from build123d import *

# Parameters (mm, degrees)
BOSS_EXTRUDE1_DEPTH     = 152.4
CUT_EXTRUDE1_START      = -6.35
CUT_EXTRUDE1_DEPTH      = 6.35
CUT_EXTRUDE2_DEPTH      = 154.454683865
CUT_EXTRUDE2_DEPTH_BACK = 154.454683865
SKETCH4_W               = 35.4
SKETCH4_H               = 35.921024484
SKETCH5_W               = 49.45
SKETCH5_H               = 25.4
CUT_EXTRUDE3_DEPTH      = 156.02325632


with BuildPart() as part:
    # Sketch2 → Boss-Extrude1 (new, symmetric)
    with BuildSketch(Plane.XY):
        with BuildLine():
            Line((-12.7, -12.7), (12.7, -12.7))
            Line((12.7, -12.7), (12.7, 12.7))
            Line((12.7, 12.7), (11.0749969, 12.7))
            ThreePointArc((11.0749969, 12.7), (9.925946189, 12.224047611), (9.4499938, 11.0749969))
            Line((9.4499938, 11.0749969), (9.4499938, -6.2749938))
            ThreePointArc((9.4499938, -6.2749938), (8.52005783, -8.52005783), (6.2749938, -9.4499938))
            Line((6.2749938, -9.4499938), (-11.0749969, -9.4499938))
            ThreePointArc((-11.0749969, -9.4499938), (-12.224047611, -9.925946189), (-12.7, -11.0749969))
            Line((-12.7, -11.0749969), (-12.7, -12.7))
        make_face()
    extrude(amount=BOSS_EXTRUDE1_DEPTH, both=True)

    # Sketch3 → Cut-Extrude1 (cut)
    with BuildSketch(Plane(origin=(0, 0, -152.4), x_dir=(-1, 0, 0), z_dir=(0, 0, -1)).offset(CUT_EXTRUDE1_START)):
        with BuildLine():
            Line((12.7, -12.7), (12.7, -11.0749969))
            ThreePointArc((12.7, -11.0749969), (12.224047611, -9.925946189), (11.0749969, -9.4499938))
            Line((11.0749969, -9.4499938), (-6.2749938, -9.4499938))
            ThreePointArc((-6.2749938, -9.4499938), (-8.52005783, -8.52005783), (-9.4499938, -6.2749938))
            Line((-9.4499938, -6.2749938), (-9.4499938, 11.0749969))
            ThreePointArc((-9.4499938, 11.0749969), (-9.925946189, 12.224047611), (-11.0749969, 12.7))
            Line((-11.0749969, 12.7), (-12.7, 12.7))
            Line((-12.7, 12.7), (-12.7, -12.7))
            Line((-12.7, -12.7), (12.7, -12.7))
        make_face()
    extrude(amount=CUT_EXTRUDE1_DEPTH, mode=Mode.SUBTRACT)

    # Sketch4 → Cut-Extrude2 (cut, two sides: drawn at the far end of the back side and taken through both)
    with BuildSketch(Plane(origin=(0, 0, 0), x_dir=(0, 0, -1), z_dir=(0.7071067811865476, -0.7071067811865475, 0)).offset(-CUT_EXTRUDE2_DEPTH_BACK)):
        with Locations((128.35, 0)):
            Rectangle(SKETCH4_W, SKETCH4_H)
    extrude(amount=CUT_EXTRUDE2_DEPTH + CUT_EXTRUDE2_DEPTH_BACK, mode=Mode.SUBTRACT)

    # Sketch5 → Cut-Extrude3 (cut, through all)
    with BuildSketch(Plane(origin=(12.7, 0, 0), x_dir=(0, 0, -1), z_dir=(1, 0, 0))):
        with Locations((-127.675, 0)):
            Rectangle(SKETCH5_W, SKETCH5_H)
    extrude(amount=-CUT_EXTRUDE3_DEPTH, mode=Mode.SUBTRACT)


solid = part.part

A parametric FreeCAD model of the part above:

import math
import FreeCAD as App
import Part
import Sketcher
from FreeCAD import Vector
Q = App.Units.Quantity

doc = App.newDocument("Part")
body = doc.addObject("PartDesign::Body", "Body")

# Sketch on XY plane
sketch1 = body.newObject("Sketcher::SketchObject", "Sketch")
sketch1.AttachmentSupport = (doc.getObject("XY_Plane"), [""])
sketch1.MapMode = "FlatFace"
sketch1.addGeometry([
    Part.LineSegment(Vector(-12.7, -12.7, 0), Vector(12.7, -12.7, 0)),  # 0
    Part.LineSegment(Vector(12.7, -12.7, 0), Vector(12.7, 12.7, 0)),  # 1
    Part.LineSegment(Vector(12.7, 12.7, 0), Vector(11.1, 12.7, 0)),  # 2
    Part.ArcOfCircle(Part.Circle(Vector(11.1, 11.1, 0), Vector(0, 0, 1), 1.6), math.radians(90), math.radians(180)),  # 3
    Part.LineSegment(Vector(9.4, 11.1, 0), Vector(9.4, -6.3, 0)),  # 4
    Part.ArcOfCircle(Part.Circle(Vector(6.3, -6.3, 0), Vector(0, 0, 1), 3.2), math.radians(-90), math.radians(0)),  # 5
    Part.LineSegment(Vector(6.3, -9.4, 0), Vector(-11.1, -9.4, 0)),  # 6
    Part.ArcOfCircle(Part.Circle(Vector(-11.1, -11.1, 0), Vector(0, 0, 1), 1.6), math.radians(90), math.radians(180)),  # 7
    Part.LineSegment(Vector(-12.7, -11.1, 0), Vector(-12.7, -12.7, 0)),  # 8
], False)
sketch1.addConstraint([
    Sketcher.Constraint("Coincident", 0, 2, 1, 1),
    Sketcher.Constraint("Coincident", 1, 2, 2, 1),
    Sketcher.Constraint("Tangent", 2, 2, 3, 1),
    Sketcher.Constraint("Tangent", 3, 2, 4, 1),
    Sketcher.Constraint("Tangent", 4, 2, 5, 2),
    Sketcher.Constraint("Tangent", 5, 1, 6, 1),
    Sketcher.Constraint("Tangent", 6, 2, 7, 1),
    Sketcher.Constraint("Tangent", 7, 2, 8, 1),
    Sketcher.Constraint("Coincident", 8, 2, 0, 1),
    Sketcher.Constraint("Horizontal", 0),
    Sketcher.Constraint("Vertical", 1),
    Sketcher.Constraint("Horizontal", 2),
    Sketcher.Constraint("Vertical", 4),
    Sketcher.Constraint("Horizontal", 6),
    Sketcher.Constraint("Vertical", 8),
    Sketcher.Constraint("Equal", 3, 7),
    Sketcher.Constraint("Symmetric", 3, 3, 7, 3, -1, 1),
    Sketcher.Constraint("Symmetric", 1, 2, 8, 2, -1, 1),
    Sketcher.Constraint("Equal", 0, 1),
    Sketcher.Constraint("DistanceX", 0, 1, 0, 2, Q("1 in")),
    Sketcher.Constraint("Radius", 5, Q("0.125 in")),
    Sketcher.Constraint("Radius", 3, 1.625003),
])
pad1 = body.newObject("PartDesign::Pad", "Pad")
pad1.Profile = sketch1
pad1.Length = Q("12 in")
pad1.Midplane = True

# Sketch on XY plane
sketch2 = body.newObject("Sketcher::SketchObject", "Sketch001")
sketch2.AttachmentSupport = (doc.getObject("XY_Plane"), [""])
sketch2.MapMode = "FlatFace"
sketch2.AttachmentOffset = App.Placement(Vector(0, 0, -5.75 * 25.4), App.Rotation())
sketch2.addGeometry([
    Part.LineSegment(Vector(-12.7, -12.7, 0), Vector(-12.7, -11.1, 0)),  # 0
    Part.ArcOfCircle(Part.Circle(Vector(-11.1, -11.1, 0), Vector(0, 0, 1), 1.6), math.radians(90), math.radians(180)),  # 1
    Part.LineSegment(Vector(-11.1, -9.4, 0), Vector(6.3, -9.4, 0)),  # 2
    Part.ArcOfCircle(Part.Circle(Vector(6.3, -6.3, 0), Vector(0, 0, 1), 3.2), math.radians(-90), math.radians(0)),  # 3
    Part.LineSegment(Vector(9.4, -6.3, 0), Vector(9.4, 11.1, 0)),  # 4
    Part.ArcOfCircle(Part.Circle(Vector(11.1, 11.1, 0), Vector(0, 0, 1), 1.6), math.radians(90), math.radians(180)),  # 5
    Part.LineSegment(Vector(11.1, 12.7, 0), Vector(12.7, 12.7, 0)),  # 6
    Part.LineSegment(Vector(12.7, 12.7, 0), Vector(12.7, -12.7, 0)),  # 7
    Part.LineSegment(Vector(12.7, -12.7, 0), Vector(-12.7, -12.7, 0)),  # 8
], False)
sketch2.addConstraint([
    Sketcher.Constraint("Tangent", 0, 2, 1, 2),
    Sketcher.Constraint("Tangent", 1, 1, 2, 1),
    Sketcher.Constraint("Tangent", 2, 2, 3, 1),
    Sketcher.Constraint("Tangent", 3, 2, 4, 1),
    Sketcher.Constraint("Tangent", 4, 2, 5, 2),
    Sketcher.Constraint("Tangent", 5, 1, 6, 1),
    Sketcher.Constraint("Coincident", 6, 2, 7, 1),
    Sketcher.Constraint("Coincident", 7, 2, 8, 1),
    Sketcher.Constraint("Coincident", 8, 2, 0, 1),
    Sketcher.Constraint("Vertical", 0),
    Sketcher.Constraint("Horizontal", 2),
    Sketcher.Constraint("Vertical", 4),
    Sketcher.Constraint("Horizontal", 6),
    Sketcher.Constraint("Vertical", 7),
    Sketcher.Constraint("Horizontal", 8),
    Sketcher.Constraint("Equal", 1, 5),
    Sketcher.Constraint("Symmetric", 1, 3, 5, 3, -1, 1),
    Sketcher.Constraint("Symmetric", 6, 2, 8, 2, -1, 1),
    Sketcher.Constraint("Equal", 2, 4),
    Sketcher.Constraint("DistanceX", 8, 2, 8, 1, Q("1 in")),
    Sketcher.Constraint("Radius", 3, Q("0.125 in")),
    Sketcher.Constraint("Radius", 1, 1.625003),
])
pocket1 = body.newObject("PartDesign::Pocket", "Pocket")
pocket1.Profile = sketch2
pocket1.Length = Q("0.25 in")

# Sketch on an angled plane
sketch3 = body.newObject("Sketcher::SketchObject", "Sketch002")
sketch3.Placement = App.Placement(Vector(0, 0, 0), App.Rotation(Vector(0, 0, -1), Vector(0.707106781, 0.707106781, 0), Vector(0.707106781, -0.707106781, 0), "ZXY"))
sketch3.addGeometry([
    Part.LineSegment(Vector(111, 18, 0), Vector(111, -18, 0)),
    Part.LineSegment(Vector(111, -18, 0), Vector(146, -18, 0)),
    Part.LineSegment(Vector(146, -18, 0), Vector(146, 18, 0)),
    Part.LineSegment(Vector(146, 18, 0), Vector(111, 18, 0)),
], False)
sketch3.addConstraint([
    Sketcher.Constraint("Coincident", 0, 2, 1, 1),
    Sketcher.Constraint("Coincident", 1, 2, 2, 1),
    Sketcher.Constraint("Coincident", 2, 2, 3, 1),
    Sketcher.Constraint("Coincident", 3, 2, 0, 1),
    Sketcher.Constraint("Vertical", 0),
    Sketcher.Constraint("Horizontal", 1),
    Sketcher.Constraint("Vertical", 2),
    Sketcher.Constraint("Horizontal", 3),
    Sketcher.Constraint("DistanceX", -1, 1, 1, 2, Q("5.75 in")),
    Sketcher.Constraint("DistanceX", 1, 1, 1, 2, 35.4),
    Sketcher.Constraint("DistanceY", 0, 2, 0, 1, 35.921024),
    Sketcher.Constraint("DistanceY", 0, 2, -1, 1, 17.960512),
])
pocket2 = body.newObject("PartDesign::Pocket", "Pocket001")
pocket2.Profile = sketch3
pocket2.Type = "ThroughAll"
pocket2.Midplane = True

# Sketch on YZ plane
sketch4 = body.newObject("Sketcher::SketchObject", "Sketch003")
sketch4.AttachmentSupport = (doc.getObject("YZ_Plane"), [""])
sketch4.MapMode = "FlatFace"
sketch4.AttachmentOffset = App.Placement(Vector(0, 0, 0.5 * 25.4), App.Rotation())
sketch4.addGeometry([
    Part.LineSegment(Vector(13, 152, 0), Vector(-13, 152, 0)),
    Part.LineSegment(Vector(-13, 152, 0), Vector(-13, 103, 0)),
    Part.LineSegment(Vector(-13, 103, 0), Vector(13, 103, 0)),
    Part.LineSegment(Vector(13, 103, 0), Vector(13, 152, 0)),
], False)
sketch4.addConstraint([
    Sketcher.Constraint("Coincident", 0, 2, 1, 1),
    Sketcher.Constraint("Coincident", 1, 2, 2, 1),
    Sketcher.Constraint("Coincident", 2, 2, 3, 1),
    Sketcher.Constraint("Coincident", 3, 2, 0, 1),
    Sketcher.Constraint("Horizontal", 0),
    Sketcher.Constraint("Vertical", 1),
    Sketcher.Constraint("Horizontal", 2),
    Sketcher.Constraint("Vertical", 3),
    Sketcher.Constraint("DistanceX", 0, 2, 0, 1, Q("1 in")),
    Sketcher.Constraint("DistanceY", -1, 1, 0, 2, Q("6 in")),
    Sketcher.Constraint("DistanceX", 0, 2, -1, 1, Q("0.5 in")),
    Sketcher.Constraint("DistanceY", 1, 2, 1, 1, 49.45),
])
pocket3 = body.newObject("PartDesign::Pocket", "Pocket002")
pocket3.Profile = sketch4
pocket3.Type = "ThroughAll"

doc.recompute()
